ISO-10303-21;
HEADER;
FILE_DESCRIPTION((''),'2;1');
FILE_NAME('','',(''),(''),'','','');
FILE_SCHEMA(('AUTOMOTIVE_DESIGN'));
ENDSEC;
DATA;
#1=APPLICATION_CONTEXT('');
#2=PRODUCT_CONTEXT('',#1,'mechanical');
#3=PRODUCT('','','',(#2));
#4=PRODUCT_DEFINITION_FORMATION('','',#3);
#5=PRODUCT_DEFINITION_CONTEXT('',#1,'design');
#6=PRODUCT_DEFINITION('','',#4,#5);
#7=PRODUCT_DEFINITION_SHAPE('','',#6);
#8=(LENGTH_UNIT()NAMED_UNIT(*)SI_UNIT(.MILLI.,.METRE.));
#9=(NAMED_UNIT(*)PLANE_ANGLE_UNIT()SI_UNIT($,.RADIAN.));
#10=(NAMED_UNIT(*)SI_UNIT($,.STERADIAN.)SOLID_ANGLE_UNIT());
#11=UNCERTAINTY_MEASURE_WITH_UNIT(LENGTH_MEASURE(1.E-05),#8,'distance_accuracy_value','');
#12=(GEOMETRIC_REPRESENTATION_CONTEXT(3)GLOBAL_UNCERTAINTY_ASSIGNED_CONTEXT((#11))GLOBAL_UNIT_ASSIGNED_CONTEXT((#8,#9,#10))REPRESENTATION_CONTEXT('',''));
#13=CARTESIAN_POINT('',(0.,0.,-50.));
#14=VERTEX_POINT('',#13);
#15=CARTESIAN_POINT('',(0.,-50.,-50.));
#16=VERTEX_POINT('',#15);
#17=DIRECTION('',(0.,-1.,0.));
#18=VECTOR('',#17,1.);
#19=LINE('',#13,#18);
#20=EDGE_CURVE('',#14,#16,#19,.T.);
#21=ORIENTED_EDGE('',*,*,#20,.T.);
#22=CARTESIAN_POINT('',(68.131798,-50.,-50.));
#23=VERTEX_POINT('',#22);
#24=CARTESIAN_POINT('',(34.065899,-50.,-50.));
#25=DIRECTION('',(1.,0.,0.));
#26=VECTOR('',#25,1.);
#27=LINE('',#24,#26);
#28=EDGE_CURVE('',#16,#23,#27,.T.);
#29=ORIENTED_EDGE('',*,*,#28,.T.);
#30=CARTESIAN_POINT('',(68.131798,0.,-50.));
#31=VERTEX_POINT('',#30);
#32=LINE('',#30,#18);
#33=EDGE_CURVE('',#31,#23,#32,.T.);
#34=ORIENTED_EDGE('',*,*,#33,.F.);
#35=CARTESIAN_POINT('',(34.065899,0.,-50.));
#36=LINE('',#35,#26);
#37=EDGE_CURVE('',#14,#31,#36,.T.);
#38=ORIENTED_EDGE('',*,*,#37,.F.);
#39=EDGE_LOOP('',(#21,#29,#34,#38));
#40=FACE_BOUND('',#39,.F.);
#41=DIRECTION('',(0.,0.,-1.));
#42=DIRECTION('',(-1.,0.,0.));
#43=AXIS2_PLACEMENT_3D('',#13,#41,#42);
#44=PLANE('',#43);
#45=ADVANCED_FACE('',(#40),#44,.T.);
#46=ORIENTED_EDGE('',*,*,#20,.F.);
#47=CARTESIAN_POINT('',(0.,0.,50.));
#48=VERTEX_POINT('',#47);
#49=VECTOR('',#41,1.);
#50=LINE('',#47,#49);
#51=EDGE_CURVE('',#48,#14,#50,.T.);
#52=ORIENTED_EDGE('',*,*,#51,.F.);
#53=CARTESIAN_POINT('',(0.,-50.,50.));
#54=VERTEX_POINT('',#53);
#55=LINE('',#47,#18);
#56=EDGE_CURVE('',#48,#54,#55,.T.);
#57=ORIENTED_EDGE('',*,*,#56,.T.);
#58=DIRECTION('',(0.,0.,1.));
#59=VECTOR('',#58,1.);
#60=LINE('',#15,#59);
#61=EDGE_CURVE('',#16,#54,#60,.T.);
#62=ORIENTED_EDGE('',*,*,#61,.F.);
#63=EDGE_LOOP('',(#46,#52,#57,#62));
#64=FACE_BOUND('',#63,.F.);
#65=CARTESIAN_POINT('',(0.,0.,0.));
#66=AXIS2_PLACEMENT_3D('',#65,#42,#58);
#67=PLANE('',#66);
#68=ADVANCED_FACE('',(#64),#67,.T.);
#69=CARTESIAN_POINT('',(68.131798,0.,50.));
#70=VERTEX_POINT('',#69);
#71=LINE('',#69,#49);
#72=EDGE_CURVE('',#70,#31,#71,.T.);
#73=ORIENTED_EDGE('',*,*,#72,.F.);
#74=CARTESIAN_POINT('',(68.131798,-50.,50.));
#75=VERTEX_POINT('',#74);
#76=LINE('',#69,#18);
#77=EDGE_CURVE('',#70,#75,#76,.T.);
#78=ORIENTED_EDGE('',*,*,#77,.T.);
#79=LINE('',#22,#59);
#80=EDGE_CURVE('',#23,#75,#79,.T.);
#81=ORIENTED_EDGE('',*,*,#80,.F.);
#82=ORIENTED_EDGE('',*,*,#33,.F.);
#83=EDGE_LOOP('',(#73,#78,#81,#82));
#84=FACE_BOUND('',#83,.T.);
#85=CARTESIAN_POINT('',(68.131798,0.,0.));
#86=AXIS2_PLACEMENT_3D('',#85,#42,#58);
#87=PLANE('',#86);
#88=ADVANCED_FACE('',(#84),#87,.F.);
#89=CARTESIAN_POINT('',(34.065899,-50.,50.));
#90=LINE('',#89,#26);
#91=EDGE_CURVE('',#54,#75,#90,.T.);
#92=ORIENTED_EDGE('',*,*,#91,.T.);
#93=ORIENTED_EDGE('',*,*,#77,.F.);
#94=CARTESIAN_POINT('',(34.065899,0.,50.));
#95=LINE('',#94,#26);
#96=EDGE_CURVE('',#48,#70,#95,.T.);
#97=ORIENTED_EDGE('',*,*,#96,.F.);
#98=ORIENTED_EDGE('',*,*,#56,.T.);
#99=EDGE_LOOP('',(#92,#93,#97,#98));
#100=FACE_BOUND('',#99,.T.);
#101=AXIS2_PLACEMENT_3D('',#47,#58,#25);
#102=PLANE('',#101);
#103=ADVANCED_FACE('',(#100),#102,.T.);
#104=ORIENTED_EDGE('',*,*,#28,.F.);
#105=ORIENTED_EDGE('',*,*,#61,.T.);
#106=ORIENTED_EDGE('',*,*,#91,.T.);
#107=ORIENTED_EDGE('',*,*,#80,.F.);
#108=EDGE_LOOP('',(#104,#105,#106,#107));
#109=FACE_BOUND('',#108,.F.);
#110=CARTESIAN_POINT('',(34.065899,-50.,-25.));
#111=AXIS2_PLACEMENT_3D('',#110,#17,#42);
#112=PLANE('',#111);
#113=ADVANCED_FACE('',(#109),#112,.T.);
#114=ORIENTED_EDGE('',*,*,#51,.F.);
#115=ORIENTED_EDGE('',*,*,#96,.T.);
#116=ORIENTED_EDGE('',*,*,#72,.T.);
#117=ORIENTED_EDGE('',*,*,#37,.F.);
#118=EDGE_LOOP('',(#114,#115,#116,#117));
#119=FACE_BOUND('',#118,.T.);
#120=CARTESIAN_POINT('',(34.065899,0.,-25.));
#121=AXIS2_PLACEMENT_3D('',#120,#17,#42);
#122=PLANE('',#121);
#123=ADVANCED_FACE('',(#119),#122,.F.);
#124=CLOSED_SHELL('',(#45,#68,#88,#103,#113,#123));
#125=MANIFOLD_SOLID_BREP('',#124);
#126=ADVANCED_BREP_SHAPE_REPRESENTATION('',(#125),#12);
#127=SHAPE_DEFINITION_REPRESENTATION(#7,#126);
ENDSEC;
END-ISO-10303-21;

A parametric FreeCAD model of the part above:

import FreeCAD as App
import Part
import Sketcher

doc = App.newDocument("Part")
body = doc.addObject("PartDesign::Body", "Body")

# Sketch on XZ plane
sketch1 = body.newObject("Sketcher::SketchObject", "Sketch")
sketch1.AttachmentSupport = (doc.getObject("XZ_Plane"), [""])
sketch1.MapMode = "FlatFace"
sketch1.addGeometry(Part.LineSegment(App.Vector(0, 50, 0), App.Vector(0, 0, 0)), False)
sketch1.addGeometry(Part.LineSegment(App.Vector(0, 0, 0), App.Vector(68.131798, 0, 0)), False)
sketch1.addGeometry(Part.LineSegment(App.Vector(68.131798, 0, 0), App.Vector(68.131798, 50, 0)), False)
sketch1.addGeometry(Part.LineSegment(App.Vector(68.131798, 50, 0), App.Vector(0, 50, 0)), False)
sketch1.addConstraint(Sketcher.Constraint("Coincident", 0, 2, 1, 1))
sketch1.addConstraint(Sketcher.Constraint("Coincident", 1, 2, 2, 1))
sketch1.addConstraint(Sketcher.Constraint("Coincident", 2, 2, 3, 1))
sketch1.addConstraint(Sketcher.Constraint("Coincident", 3, 2, 0, 1))
sketch1.addConstraint(Sketcher.Constraint("Vertical", 0))
sketch1.addConstraint(Sketcher.Constraint("Horizontal", 1))
sketch1.addConstraint(Sketcher.Constraint("Vertical", 2))
sketch1.addConstraint(Sketcher.Constraint("Horizontal", 3))
sketch1.addConstraint(Sketcher.Constraint("Coincident", 0, 2, -1, 1))
sketch1.addConstraint(Sketcher.Constraint("DistanceY", 0, 2, 0, 1, 50.0))
sketch1.addConstraint(Sketcher.Constraint("DistanceX", 1, 1, 1, 2, 68.131798))
pad1 = body.newObject("PartDesign::Pad", "Pad")
pad1.Profile = sketch1
pad1.Length = 50
body2 = doc.addObject("PartDesign::Body", "Body001")
doc.recompute()

body2.BaseFeature = body
doc.recompute()

mirroring = doc.addObject("Part::Mirroring", "Mirroring")
mirroring.Source = body
mirroring.Base = App.Vector(0, 0, 0)
mirroring.Normal = App.Vector(0, 0, 1)
body3 = doc.addObject("PartDesign::Body", "Body002")
body3.BaseFeature = mirroring
boolean = body2.newObject("PartDesign::Boolean", "Boolean")
boolean.Type = "Fuse"
boolean.addObjects([body3])
doc.recompute()
mirroring.Visibility = False

doc.recompute()
